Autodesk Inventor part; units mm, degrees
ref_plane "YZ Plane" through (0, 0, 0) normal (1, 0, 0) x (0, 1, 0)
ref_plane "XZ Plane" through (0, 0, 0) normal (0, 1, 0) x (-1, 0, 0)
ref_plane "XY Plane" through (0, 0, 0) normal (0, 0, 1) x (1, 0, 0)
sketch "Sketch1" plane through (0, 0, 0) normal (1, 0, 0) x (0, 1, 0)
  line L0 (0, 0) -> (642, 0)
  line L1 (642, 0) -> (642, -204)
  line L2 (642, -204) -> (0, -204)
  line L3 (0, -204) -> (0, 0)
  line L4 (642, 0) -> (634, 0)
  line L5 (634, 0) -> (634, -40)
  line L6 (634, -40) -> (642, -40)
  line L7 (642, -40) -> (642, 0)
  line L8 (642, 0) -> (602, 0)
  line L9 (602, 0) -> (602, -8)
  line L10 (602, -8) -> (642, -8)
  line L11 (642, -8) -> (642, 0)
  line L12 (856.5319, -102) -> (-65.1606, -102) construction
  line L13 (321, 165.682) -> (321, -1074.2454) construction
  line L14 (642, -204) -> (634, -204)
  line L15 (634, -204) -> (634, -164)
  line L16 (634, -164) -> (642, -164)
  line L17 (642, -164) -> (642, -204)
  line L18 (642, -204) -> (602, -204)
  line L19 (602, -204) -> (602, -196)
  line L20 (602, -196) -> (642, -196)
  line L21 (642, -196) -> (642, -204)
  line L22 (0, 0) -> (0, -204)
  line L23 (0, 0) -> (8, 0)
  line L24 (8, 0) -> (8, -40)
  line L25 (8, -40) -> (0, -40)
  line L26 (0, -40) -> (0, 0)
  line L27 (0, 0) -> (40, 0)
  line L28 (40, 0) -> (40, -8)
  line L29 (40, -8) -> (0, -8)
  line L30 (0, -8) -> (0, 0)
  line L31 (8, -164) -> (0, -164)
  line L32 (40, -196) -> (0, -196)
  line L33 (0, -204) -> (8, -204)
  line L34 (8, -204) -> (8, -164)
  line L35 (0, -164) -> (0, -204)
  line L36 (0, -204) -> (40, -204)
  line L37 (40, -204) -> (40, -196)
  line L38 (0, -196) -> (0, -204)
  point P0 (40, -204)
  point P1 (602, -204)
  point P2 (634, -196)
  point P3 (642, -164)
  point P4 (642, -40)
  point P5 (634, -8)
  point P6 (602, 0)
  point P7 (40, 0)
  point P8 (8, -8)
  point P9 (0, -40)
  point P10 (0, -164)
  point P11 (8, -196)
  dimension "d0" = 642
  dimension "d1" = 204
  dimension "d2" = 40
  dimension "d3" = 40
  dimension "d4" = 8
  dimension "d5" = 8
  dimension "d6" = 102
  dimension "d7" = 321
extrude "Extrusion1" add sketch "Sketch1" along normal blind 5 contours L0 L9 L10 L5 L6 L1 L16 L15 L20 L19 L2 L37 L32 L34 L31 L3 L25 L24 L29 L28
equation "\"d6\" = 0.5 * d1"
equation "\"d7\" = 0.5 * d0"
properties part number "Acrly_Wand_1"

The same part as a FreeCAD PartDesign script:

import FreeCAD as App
import Part
import Sketcher
from FreeCAD import Vector


def add_polygon(sketch, points):
    """Adds a closed chain of lines whose ends are joined by coincident constraints."""
    first, n = sketch.GeometryCount, len(points)
    for a, b in zip(points, points[1:] + points[:1]):
        sketch.addGeometry(Part.LineSegment(App.Vector(*a, 0), App.Vector(*b, 0)), False)
    for i in range(n):
        sketch.addConstraint(Sketcher.Constraint("Coincident", first + i, 2, first + (i + 1) % n, 1))

doc = App.newDocument("Part")
params = doc.addObject("Spreadsheet::Sheet", "Params")
for row, (alias, value) in enumerate([
    ("sketch1_width", "8 mm"),
    ("pad1_length", "5 mm"),
], start=1):
    params.set(f"A{row}", alias)
    params.set(f"B{row}", "=" + value)
    params.setAlias(f"B{row}", alias)

body = doc.addObject("PartDesign::Body", "Body")

# Sketch on YZ plane
sketch1 = doc.addObject("Sketcher::SketchObject", "Sketch")
body.addObject(sketch1)
sketch1.AttachmentSupport = (doc.YZ_Plane, [""])
sketch1.MapMode = "FlatFace"
add_polygon(sketch1, [(602, 0), (40, 0), (40, -8), (8, -8), (8, -40), (0, -40), (0, -164), (8, -164), (8, -196), (40, -196), (40, -204), (602, -204), (602, -196), (634, -196), (634, -164), (642, -164), (642, -40), (634, -40), (634, -8), (602, -8)])  # lines 0-19
sketch1.addConstraint([
    Sketcher.Constraint("Horizontal", 0),
    Sketcher.Constraint("Vertical", 1),
    Sketcher.Constraint("Horizontal", 2),
    Sketcher.Constraint("Vertical", 3),
    Sketcher.Constraint("Horizontal", 4),
    Sketcher.Constraint("Vertical", 5),
    Sketcher.Constraint("Horizontal", 6),
    Sketcher.Constraint("Vertical", 7),
    Sketcher.Constraint("Horizontal", 8),
    Sketcher.Constraint("Vertical", 9),
    Sketcher.Constraint("Horizontal", 10),
    Sketcher.Constraint("Vertical", 11),
    Sketcher.Constraint("Horizontal", 12),
    Sketcher.Constraint("Vertical", 13),
    Sketcher.Constraint("Horizontal", 14),
    Sketcher.Constraint("Vertical", 15),
    Sketcher.Constraint("Horizontal", 16),
    Sketcher.Constraint("Vertical", 17),
    Sketcher.Constraint("Horizontal", 18),
    Sketcher.Constraint("Vertical", 19),
    Sketcher.Constraint("PointOnObject", 0, 2, -1),
    Sketcher.Constraint("PointOnObject", 4, 2, -2),
    Sketcher.Constraint("Horizontal", 8, 2, 11, 2),
    Sketcher.Constraint("Horizontal", 6, 2, 13, 2),
    Sketcher.Constraint("Horizontal", 4, 2, 15, 2),
    Sketcher.Constraint("Horizontal", 2, 2, 17, 2),
    Sketcher.Constraint("Vertical", 3, 2, 6, 2),
    Sketcher.Constraint("Vertical", 1, 2, 8, 2),
    Sketcher.Constraint("Vertical", 13, 2, 16, 2),
    Sketcher.Constraint("Vertical", 11, 2, 18, 2),
    Sketcher.Constraint("Equal", 8, 12),
    Sketcher.Constraint("Equal", 6, 14),
    Sketcher.Constraint("Equal", 16, 1),
    Sketcher.Constraint("Equal", 18, 3),
    Sketcher.Constraint("Equal", 3, 7),
    Sketcher.Constraint("Equal", 1, 9),
    Sketcher.Constraint("DistanceX", 4, 2, 4, 1, 8.0),
    Sketcher.Constraint("DistanceX", -1, 1, 0, 2, 40.0),
    Sketcher.Constraint("DistanceY", 9, 2, -1, 1, 204.0),
    Sketcher.Constraint("DistanceX", -1, 1, 14, 2, 642.0),
])
sketch1.setExpression("Constraints[56]", "Params.sketch1_width")
pad1 = doc.addObject("PartDesign::Pad", "Pad")
body.addObject(pad1)
pad1.Profile = sketch1
pad1.setExpression("Length", "Params.pad1_length")

doc.recompute()
